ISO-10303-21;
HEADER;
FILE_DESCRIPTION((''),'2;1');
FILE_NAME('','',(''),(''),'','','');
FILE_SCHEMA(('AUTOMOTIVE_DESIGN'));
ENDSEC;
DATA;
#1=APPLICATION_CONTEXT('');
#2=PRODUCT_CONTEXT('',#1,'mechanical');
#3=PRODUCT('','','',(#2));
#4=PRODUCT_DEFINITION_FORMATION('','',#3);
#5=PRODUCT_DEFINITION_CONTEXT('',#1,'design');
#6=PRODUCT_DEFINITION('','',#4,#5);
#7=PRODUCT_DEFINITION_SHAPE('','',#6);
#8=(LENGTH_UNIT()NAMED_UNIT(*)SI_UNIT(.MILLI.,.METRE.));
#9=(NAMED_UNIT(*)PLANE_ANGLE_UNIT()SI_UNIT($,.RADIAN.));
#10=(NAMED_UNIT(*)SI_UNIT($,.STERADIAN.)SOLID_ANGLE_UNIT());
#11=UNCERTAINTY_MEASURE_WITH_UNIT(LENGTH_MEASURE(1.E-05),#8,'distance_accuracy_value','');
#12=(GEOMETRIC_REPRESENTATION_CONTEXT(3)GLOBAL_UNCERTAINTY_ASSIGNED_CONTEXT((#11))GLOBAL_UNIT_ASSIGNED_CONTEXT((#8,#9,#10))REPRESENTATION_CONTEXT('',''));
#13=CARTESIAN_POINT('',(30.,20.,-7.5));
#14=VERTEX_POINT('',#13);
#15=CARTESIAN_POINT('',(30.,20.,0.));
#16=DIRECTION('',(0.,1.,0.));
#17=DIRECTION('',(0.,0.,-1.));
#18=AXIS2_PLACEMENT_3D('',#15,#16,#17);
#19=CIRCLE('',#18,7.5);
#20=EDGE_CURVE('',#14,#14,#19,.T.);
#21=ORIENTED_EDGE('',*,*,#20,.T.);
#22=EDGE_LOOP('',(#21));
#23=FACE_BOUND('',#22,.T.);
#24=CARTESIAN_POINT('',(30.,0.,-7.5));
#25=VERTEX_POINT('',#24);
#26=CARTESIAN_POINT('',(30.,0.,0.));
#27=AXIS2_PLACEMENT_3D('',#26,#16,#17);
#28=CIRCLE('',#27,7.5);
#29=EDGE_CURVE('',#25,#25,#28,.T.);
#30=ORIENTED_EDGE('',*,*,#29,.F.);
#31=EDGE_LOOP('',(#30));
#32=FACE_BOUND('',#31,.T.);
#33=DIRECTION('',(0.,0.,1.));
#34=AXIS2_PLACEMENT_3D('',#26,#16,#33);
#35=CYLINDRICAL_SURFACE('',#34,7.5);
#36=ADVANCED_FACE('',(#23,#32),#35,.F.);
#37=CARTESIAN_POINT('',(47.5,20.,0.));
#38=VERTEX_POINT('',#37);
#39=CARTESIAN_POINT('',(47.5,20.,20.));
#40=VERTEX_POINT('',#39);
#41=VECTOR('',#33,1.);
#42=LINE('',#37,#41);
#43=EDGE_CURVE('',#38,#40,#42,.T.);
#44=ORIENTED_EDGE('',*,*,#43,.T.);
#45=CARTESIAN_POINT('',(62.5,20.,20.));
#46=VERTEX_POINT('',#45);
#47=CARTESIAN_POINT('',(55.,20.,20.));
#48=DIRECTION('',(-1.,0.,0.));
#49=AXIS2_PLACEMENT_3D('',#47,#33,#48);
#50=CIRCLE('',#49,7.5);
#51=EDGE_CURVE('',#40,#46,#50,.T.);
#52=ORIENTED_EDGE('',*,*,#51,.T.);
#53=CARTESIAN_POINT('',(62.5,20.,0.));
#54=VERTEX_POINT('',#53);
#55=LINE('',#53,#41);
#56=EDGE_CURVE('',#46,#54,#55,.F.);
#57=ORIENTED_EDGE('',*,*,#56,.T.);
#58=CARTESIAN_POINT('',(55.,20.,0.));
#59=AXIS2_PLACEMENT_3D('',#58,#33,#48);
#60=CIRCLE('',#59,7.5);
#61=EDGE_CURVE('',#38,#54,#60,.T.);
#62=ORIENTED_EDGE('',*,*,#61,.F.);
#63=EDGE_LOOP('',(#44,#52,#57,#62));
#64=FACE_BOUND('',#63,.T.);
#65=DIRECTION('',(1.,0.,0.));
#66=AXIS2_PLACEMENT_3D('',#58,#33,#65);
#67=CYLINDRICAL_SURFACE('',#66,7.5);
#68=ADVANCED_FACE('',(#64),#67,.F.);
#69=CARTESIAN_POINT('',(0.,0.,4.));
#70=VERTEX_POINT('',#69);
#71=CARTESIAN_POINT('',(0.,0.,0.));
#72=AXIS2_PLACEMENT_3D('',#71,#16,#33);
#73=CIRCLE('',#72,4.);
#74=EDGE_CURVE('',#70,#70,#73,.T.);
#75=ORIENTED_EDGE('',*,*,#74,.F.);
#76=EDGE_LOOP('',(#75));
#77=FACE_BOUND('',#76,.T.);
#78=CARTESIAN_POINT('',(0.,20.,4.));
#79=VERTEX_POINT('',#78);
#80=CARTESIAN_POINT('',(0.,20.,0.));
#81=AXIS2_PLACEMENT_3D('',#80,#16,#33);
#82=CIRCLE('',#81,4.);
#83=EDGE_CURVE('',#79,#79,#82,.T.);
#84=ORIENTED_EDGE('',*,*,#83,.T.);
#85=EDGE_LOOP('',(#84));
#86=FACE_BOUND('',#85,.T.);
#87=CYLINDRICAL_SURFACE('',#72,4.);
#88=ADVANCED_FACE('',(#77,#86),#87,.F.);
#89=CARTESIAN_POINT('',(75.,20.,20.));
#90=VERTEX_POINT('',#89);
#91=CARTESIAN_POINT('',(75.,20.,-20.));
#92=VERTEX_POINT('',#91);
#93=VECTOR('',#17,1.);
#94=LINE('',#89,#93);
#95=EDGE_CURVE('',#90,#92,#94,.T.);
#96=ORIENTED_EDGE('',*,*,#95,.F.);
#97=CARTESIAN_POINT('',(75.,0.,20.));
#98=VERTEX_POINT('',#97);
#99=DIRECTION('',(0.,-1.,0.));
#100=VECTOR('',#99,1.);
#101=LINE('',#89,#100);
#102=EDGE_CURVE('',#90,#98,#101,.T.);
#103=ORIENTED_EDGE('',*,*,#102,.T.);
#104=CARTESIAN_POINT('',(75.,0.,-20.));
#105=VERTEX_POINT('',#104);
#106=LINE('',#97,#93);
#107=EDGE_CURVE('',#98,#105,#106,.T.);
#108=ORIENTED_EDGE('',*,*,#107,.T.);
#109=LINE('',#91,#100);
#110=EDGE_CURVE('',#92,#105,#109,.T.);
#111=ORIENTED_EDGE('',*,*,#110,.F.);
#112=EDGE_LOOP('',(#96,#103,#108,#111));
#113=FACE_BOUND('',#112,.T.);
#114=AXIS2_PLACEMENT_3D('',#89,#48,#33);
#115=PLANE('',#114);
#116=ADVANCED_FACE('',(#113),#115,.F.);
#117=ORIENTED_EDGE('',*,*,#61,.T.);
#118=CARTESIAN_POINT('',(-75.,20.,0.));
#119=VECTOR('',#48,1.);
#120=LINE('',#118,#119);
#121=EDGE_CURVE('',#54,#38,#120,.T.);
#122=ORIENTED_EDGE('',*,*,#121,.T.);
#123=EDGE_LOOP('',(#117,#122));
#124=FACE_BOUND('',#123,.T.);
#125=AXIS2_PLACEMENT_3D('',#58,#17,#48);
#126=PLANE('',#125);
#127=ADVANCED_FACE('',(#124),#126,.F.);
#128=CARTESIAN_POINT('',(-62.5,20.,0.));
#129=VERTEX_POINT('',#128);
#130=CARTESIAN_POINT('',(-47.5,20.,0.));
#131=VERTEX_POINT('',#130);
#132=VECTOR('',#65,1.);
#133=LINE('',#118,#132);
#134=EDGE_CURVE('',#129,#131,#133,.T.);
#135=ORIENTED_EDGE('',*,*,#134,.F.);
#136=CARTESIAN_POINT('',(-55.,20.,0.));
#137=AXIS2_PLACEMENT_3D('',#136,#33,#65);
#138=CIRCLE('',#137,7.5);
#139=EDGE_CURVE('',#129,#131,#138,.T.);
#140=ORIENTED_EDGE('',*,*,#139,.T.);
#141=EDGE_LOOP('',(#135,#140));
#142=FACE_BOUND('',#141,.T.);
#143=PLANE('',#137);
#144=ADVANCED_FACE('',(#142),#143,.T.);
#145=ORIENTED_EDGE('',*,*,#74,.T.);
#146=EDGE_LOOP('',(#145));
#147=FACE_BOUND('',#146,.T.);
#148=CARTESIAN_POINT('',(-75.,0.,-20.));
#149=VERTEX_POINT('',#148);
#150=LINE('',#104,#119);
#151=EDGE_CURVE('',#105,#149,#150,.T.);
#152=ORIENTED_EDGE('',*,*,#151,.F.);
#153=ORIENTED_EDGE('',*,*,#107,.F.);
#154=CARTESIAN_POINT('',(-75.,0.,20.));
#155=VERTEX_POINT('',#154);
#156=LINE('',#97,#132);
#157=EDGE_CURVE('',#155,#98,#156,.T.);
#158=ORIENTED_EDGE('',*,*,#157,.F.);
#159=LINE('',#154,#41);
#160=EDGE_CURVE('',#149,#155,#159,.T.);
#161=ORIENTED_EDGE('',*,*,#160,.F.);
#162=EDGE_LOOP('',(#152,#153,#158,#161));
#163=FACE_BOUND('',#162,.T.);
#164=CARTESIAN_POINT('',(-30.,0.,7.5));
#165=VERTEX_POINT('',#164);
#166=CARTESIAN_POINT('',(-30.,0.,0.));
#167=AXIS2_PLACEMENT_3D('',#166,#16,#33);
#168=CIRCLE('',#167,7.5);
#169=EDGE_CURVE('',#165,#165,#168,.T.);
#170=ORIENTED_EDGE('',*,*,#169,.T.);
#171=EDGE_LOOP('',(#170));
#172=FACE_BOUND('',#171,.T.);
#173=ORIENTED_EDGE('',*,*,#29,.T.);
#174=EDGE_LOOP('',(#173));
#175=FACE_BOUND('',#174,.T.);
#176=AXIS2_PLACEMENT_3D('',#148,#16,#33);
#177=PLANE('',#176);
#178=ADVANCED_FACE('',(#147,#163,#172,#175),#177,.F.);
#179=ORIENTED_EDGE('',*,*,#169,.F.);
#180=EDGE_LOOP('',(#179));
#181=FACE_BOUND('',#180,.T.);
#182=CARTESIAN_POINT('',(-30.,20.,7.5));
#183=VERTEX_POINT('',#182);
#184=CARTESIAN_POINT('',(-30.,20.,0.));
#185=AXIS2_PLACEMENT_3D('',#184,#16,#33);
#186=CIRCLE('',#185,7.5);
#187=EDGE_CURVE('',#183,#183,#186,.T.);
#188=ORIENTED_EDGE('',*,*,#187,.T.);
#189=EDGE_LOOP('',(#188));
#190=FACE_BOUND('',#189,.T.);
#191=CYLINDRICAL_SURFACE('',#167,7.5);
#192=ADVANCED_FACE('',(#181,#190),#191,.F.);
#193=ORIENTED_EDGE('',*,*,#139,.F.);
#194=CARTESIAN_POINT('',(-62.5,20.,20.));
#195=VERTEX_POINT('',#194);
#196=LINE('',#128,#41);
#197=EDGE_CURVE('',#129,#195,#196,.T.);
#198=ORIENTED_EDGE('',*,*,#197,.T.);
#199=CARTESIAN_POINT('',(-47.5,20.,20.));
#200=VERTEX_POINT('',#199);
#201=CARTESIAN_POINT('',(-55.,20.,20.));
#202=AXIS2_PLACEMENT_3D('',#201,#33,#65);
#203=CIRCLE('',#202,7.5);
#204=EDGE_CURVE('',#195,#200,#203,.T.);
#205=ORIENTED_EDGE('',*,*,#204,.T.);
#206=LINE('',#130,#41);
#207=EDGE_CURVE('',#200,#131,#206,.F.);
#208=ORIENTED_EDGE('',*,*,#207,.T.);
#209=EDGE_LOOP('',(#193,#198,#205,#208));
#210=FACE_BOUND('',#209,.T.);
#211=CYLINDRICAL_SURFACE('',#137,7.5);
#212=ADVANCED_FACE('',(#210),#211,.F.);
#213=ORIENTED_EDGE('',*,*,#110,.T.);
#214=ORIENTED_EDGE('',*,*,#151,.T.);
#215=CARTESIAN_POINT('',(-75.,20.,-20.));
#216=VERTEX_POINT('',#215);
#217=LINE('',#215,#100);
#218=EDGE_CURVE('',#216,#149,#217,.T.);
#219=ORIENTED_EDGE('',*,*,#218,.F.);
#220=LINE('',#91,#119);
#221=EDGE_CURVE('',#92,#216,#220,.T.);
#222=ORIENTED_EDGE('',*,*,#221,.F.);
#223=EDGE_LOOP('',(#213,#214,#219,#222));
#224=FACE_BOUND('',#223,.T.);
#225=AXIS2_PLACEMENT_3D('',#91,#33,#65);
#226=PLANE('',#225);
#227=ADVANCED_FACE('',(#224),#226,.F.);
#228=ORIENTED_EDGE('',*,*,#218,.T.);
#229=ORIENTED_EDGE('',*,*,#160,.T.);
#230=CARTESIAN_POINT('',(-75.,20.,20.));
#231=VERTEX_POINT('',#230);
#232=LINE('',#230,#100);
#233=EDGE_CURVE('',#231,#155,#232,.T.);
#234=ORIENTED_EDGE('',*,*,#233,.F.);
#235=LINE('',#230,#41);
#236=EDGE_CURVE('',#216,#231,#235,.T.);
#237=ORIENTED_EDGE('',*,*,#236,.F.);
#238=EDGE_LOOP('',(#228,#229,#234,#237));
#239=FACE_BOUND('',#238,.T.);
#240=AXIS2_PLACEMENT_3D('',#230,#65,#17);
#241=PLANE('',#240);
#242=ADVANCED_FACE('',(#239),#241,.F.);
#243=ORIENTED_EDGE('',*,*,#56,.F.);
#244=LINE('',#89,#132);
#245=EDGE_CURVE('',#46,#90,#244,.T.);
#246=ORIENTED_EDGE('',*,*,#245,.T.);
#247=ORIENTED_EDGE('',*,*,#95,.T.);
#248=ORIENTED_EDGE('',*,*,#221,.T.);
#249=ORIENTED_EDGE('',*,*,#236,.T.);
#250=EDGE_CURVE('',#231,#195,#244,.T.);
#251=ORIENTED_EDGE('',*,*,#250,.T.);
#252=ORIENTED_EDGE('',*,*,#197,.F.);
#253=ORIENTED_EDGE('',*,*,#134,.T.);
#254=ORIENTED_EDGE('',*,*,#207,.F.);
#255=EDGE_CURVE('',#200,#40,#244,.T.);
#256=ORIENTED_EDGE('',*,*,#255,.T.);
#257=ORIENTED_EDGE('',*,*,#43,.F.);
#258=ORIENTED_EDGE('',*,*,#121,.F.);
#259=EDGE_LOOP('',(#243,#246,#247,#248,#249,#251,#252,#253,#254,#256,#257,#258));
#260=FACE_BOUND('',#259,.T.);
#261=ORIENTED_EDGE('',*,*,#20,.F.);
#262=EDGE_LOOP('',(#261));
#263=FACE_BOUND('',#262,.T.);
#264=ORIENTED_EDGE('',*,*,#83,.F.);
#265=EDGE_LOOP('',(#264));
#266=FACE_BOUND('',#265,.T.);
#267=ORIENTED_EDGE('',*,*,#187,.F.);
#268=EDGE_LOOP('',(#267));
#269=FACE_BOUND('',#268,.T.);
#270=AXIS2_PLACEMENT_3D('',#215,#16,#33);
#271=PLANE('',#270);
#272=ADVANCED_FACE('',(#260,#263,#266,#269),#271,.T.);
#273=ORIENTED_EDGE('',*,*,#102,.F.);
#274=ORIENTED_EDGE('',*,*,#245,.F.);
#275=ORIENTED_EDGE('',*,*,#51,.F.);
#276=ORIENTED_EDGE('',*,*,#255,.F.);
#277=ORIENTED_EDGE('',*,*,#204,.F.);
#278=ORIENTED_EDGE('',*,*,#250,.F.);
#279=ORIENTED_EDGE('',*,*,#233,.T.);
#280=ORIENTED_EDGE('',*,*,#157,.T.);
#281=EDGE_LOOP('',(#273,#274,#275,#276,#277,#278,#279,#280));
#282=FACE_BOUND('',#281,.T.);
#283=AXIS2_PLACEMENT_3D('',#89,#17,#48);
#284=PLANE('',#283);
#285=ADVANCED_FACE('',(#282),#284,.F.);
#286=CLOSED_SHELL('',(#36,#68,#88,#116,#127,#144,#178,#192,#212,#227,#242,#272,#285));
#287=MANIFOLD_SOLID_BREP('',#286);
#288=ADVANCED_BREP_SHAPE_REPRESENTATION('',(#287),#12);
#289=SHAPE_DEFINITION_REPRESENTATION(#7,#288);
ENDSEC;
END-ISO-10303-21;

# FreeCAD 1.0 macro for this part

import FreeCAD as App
import Part
import Sketcher
from FreeCAD import Vector
Q = App.Units.Quantity

doc = App.newDocument("Part")
body = doc.addObject("PartDesign::Body", "Body")

# Sketch on XZ plane
sketch1 = body.newObject("Sketcher::SketchObject", "Sketch")
sketch1.AttachmentSupport = (doc.getObject("XZ_Plane"), [""])
sketch1.MapMode = "FlatFace"
sketch1.addGeometry([
    Part.LineSegment(Vector(-75, -20, 0), Vector(-75, 20, 0)),
    Part.LineSegment(Vector(-75, 20, 0), Vector(75, 20, 0)),
    Part.LineSegment(Vector(75, 20, 0), Vector(75, -20, 0)),
    Part.LineSegment(Vector(75, -20, 0), Vector(-75, -20, 0)),
], False)
sketch1.addConstraint([
    Sketcher.Constraint("Coincident", 0, 2, 1, 1),
    Sketcher.Constraint("Coincident", 1, 2, 2, 1),
    Sketcher.Constraint("Coincident", 2, 2, 3, 1),
    Sketcher.Constraint("Coincident", 3, 2, 0, 1),
    Sketcher.Constraint("Vertical", 0),
    Sketcher.Constraint("Horizontal", 1),
    Sketcher.Constraint("Vertical", 2),
    Sketcher.Constraint("Horizontal", 3),
    Sketcher.Constraint("Symmetric", 0, 2, 2, 2, -1, 1),
    Sketcher.Constraint("DistanceX", 1, 1, 1, 2, Q("150 mm")),
    Sketcher.Constraint("DistanceY", 0, 1, 0, 2, Q("40 mm")),
])
pad1 = body.newObject("PartDesign::Pad", "Pad")
pad1.Profile = sketch1
pad1.Length = 20
pad1.Reversed = True

# Sketch on XZ plane
sketch2 = body.newObject("Sketcher::SketchObject", "Sketch001")
sketch2.AttachmentSupport = (doc.getObject("XZ_Plane"), [""])
sketch2.MapMode = "FlatFace"
sketch2.AttachmentOffset = App.Placement(Vector(0, 0, -20), App.Rotation())
sketch2.addGeometry([
    Part.Circle(Vector(-30, 0, 0), Vector(0, 0, 1), 7.5),
    Part.Circle(Vector(30, 0, 0), Vector(0, 0, 1), 7.5),
    Part.Circle(Vector(0, 0, 0), Vector(0, 0, 1), 4),
], False)
sketch2.addConstraint([
    Sketcher.Constraint("Coincident", 2, 3, -1, 1),
    Sketcher.Constraint("Equal", 0, 1),
    Sketcher.Constraint("Symmetric", 0, 3, 1, 3, -1, 1),
    Sketcher.Constraint("PointOnObject", 0, 3, -1),
    Sketcher.Constraint("Diameter", 0, Q("15 mm")),
    Sketcher.Constraint("Diameter", 2, Q("8 mm")),
    Sketcher.Constraint("DistanceX", 0, 3, -1, 1, Q("30 mm")),
])
pocket1 = body.newObject("PartDesign::Pocket", "Pocket")
pocket1.Profile = sketch2
pocket1.Type = "ThroughAll"
pocket1.Reversed = True

# Sketch on XY plane
sketch3 = body.newObject("Sketcher::SketchObject", "Sketch002")
sketch3.AttachmentSupport = (doc.getObject("XY_Plane"), [""])
sketch3.MapMode = "FlatFace"
sketch3.AttachmentOffset = App.Placement(Vector(0, 0, 20), App.Rotation())
sketch3.addGeometry([
    Part.Circle(Vector(-55, 20, 0), Vector(0, 0, 1), 7.5),
    Part.Circle(Vector(55, 20, 0), Vector(0, 0, 1), 7.5),
], False)
sketch3.addConstraint([
    Sketcher.Constraint("Equal", 0, 1),
    Sketcher.Constraint("Symmetric", 0, 3, 1, 3, -2),
    Sketcher.Constraint("Diameter", 0, Q("15 mm")),
    Sketcher.Constraint("DistanceX", 0, 3, -1, 1, Q("55 mm")),
    Sketcher.Constraint("DistanceY", -1, 1, 0, 3, Q("20 mm")),
])
pocket2 = body.newObject("PartDesign::Pocket", "Pocket001")
pocket2.Profile = sketch3
pocket2.Length = 20

doc.recompute()
